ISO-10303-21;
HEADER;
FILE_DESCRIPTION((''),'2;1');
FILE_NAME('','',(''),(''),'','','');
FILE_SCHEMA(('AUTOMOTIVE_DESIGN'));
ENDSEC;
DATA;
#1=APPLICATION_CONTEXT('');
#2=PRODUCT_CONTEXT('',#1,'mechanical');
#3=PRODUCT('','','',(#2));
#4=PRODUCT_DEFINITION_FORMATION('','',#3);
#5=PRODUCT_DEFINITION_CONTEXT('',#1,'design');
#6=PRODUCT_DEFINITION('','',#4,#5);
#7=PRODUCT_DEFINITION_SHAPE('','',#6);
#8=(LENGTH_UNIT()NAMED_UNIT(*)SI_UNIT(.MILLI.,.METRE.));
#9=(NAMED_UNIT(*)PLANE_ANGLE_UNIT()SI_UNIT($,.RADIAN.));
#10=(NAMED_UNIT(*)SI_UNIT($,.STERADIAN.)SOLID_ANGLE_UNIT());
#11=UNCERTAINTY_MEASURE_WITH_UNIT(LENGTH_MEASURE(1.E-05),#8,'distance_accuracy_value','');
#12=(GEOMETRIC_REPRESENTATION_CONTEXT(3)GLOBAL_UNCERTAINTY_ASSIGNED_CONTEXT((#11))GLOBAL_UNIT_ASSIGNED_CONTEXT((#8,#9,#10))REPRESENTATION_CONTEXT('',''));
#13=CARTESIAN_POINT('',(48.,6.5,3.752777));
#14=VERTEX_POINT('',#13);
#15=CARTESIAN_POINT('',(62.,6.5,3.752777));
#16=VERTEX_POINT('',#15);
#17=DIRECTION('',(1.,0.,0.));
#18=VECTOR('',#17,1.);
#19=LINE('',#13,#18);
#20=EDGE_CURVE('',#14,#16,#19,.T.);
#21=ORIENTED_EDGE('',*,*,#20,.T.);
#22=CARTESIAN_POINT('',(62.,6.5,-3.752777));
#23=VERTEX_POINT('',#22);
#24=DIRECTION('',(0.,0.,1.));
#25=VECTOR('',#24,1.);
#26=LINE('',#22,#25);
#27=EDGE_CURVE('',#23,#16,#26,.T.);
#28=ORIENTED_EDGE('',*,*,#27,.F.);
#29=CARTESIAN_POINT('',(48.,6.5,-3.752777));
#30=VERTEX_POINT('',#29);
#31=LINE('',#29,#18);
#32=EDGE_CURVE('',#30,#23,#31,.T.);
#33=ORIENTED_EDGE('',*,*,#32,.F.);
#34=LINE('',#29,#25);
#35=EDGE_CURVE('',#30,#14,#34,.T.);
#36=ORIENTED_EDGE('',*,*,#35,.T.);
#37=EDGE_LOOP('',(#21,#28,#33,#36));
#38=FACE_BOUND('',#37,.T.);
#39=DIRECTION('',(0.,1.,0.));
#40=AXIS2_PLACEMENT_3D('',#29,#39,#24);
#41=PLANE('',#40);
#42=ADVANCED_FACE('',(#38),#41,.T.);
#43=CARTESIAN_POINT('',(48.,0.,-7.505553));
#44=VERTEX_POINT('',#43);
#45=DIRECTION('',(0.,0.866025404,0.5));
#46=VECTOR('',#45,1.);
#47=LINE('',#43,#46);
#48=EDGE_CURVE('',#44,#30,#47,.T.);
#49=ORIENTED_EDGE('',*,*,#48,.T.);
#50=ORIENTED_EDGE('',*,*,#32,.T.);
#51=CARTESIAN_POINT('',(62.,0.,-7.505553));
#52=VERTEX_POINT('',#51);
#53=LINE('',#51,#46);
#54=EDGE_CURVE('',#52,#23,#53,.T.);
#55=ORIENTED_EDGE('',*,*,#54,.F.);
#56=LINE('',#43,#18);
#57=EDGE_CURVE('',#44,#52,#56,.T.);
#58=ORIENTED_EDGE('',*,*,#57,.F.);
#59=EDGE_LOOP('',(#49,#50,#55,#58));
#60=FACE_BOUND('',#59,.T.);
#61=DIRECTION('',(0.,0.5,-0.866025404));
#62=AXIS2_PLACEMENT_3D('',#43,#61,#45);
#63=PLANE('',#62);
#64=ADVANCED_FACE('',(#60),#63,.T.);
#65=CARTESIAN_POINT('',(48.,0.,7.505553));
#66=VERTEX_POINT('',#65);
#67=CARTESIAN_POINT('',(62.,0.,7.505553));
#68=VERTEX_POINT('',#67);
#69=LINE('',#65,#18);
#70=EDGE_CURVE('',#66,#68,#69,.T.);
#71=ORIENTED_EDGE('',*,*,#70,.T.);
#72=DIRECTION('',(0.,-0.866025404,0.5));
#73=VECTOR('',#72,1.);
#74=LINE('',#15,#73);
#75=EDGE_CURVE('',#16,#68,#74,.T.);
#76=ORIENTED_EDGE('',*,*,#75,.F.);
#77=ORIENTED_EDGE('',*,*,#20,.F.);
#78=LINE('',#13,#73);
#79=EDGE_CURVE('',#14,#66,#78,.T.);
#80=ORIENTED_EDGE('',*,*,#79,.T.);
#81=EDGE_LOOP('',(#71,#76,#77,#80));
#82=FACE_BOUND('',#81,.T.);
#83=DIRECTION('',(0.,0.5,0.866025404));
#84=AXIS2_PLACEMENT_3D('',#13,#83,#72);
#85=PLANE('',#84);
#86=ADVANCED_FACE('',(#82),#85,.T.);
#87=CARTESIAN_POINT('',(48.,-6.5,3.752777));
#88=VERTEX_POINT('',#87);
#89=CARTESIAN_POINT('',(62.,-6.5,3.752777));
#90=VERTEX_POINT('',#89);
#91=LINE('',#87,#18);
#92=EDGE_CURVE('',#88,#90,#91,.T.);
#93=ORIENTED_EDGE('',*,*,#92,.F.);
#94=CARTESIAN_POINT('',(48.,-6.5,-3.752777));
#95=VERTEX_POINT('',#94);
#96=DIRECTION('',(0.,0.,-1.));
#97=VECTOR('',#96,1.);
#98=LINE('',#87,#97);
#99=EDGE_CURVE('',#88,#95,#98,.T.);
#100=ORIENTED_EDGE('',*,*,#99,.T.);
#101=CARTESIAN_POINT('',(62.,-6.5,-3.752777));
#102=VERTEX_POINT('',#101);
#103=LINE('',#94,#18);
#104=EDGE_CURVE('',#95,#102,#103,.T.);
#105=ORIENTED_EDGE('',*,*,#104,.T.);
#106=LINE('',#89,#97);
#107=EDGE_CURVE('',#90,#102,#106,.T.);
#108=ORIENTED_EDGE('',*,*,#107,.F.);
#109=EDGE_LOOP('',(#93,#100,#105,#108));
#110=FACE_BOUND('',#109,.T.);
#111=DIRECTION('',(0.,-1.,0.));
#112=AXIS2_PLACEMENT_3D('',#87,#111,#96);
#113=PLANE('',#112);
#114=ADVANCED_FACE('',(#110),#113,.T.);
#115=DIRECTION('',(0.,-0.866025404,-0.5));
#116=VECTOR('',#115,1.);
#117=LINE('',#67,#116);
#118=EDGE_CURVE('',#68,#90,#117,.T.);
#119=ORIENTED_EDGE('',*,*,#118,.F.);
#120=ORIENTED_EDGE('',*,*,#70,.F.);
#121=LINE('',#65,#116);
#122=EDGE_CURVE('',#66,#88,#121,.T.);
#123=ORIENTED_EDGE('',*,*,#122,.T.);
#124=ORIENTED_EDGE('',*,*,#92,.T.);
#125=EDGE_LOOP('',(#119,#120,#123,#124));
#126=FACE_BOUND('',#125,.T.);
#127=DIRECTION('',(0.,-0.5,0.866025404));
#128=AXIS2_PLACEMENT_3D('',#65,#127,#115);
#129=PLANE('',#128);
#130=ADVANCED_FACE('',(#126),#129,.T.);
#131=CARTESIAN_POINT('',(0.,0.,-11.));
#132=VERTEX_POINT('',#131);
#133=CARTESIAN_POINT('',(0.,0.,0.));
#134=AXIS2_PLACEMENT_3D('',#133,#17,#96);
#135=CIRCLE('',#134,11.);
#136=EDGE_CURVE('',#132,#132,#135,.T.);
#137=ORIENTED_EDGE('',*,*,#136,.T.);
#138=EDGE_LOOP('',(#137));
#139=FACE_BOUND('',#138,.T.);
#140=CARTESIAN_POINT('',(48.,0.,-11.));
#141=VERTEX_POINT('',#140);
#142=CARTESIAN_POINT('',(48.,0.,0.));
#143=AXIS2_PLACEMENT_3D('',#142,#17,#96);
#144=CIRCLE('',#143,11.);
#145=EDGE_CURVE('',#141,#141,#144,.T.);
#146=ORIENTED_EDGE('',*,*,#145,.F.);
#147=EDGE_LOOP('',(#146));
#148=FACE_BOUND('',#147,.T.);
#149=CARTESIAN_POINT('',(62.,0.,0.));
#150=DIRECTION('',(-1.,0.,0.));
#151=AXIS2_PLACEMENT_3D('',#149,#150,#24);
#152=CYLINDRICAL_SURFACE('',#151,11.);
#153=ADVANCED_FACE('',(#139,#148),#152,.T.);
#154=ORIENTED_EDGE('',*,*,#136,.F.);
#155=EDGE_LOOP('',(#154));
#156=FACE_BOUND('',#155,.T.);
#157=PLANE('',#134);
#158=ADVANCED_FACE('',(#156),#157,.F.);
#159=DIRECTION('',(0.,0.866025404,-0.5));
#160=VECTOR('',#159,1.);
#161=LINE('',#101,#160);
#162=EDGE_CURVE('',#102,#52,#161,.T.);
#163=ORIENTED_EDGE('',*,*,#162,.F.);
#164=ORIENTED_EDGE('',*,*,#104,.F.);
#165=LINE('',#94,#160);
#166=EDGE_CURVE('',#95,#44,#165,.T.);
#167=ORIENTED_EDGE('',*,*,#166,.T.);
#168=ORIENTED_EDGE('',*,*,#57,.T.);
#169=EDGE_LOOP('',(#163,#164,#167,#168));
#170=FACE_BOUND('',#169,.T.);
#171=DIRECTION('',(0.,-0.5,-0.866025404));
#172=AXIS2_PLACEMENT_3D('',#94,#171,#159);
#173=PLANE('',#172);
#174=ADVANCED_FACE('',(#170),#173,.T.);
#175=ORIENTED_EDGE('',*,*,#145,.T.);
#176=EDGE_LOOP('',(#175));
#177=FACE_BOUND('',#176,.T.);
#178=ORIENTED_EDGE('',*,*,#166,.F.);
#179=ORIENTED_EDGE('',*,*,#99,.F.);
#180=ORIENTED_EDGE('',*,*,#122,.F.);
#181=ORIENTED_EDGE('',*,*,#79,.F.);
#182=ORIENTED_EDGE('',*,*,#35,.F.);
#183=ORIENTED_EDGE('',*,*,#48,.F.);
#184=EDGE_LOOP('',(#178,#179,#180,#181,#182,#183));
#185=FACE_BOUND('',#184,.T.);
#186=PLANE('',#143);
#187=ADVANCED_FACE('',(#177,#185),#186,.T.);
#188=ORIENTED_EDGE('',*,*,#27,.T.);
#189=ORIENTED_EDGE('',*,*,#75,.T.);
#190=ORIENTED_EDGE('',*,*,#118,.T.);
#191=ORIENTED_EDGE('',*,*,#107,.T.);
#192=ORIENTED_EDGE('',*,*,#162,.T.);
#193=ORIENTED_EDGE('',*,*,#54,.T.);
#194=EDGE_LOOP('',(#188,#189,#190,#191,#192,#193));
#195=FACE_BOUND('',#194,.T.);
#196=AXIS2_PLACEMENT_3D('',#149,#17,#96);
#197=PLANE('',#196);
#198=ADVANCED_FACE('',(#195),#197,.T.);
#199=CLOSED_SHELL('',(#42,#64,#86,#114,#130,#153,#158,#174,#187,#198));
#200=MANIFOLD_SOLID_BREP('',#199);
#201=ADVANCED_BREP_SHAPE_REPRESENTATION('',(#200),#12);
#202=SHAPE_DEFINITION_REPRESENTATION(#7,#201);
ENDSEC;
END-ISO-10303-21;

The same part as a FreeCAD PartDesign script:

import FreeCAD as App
import Part
import Sketcher

V = App.Vector
Q = App.Units.Quantity


def add_polygon(sketch, points):
    """Adds a closed chain of lines whose ends are joined by coincident constraints."""
    first, n = sketch.GeometryCount, len(points)
    for a, b in zip(points, points[1:] + points[:1]):
        sketch.addGeometry(Part.LineSegment(App.Vector(*a, 0), App.Vector(*b, 0)), False)
    for i in range(n):
        sketch.addConstraint(Sketcher.Constraint("Coincident", first + i, 2, first + (i + 1) % n, 1))

doc = App.newDocument("Part")
params = doc.addObject("Spreadsheet::Sheet", "Params")
for row, (alias, value) in enumerate([
    ("sketch1_diameter", "22 mm"),
    ("pad1_length", "62 mm"),
    ("sketch2_diameter", "22 mm"),
    ("pocket1_length", "14 mm"),
], start=1):
    params.set(f"A{row}", alias)
    params.set(f"B{row}", "=" + value)
    params.setAlias(f"B{row}", alias)

body = doc.addObject("PartDesign::Body", "Body")

# Sketch on YZ plane
sketch1 = doc.addObject("Sketcher::SketchObject", "Sketch")
body.addObject(sketch1)
sketch1.AttachmentSupport = (doc.YZ_Plane, [""])
sketch1.MapMode = "FlatFace"
sketch1.addGeometry(Part.Circle(V(0, 0, 0), V(0, 0, 1), 11), False)
sketch1.addConstraint([
    Sketcher.Constraint("Coincident", 0, 3, -1, 1),
    Sketcher.Constraint("Diameter", 0, Q("22 mm")),
])
sketch1.setExpression("Constraints[1]", "Params.sketch1_diameter")
pad1 = doc.addObject("PartDesign::Pad", "Pad")
body.addObject(pad1)
pad1.Profile = sketch1
pad1.setExpression("Length", "Params.pad1_length")

# Sketch on YZ plane
sketch2 = doc.addObject("Sketcher::SketchObject", "Sketch001")
body.addObject(sketch2)
sketch2.AttachmentSupport = (doc.YZ_Plane, [""])
sketch2.MapMode = "FlatFace"
sketch2.AttachmentOffset = App.Placement(V(0, 0, 48), App.Rotation())
sketch2.addGeometry(Part.Circle(V(0, 0, 0), V(0, 0, 1), 11), False)  # 0
add_polygon(sketch2, [(-6.5, 3.752777), (0, 7.505553), (6.5, 3.752777), (6.5, -3.752777), (0, -7.505553), (-6.5, -3.752777)])  # lines 1-6
sketch2.addConstraint([
    Sketcher.Constraint("Vertical", 3),
    Sketcher.Constraint("Vertical", 6),
    Sketcher.Constraint("Coincident", 0, 3, -1, 1),
    Sketcher.Constraint("Symmetric", 1, 2, 4, 2, -1, 1),
    Sketcher.Constraint("Symmetric", 2, 2, 5, 2, -1, 1),
    Sketcher.Constraint("PointOnObject", 1, 2, -2),
    Sketcher.Constraint("Parallel", 1, 4),
    Sketcher.Constraint("Horizontal", 3, 2, 5, 2),
    Sketcher.Constraint("Diameter", 0, Q("22 mm")),
    Sketcher.Constraint("Angle", 1, Q("30 deg")),
    Sketcher.Constraint("DistanceX", 5, 2, 3, 2, Q("13 mm")),
    Sketcher.Constraint("DistanceY", 3, 2, 3, 1, Q("7.505554 mm")),
])
sketch2.setExpression("Constraints[14]", "Params.sketch2_diameter")
pocket1 = doc.addObject("PartDesign::Pocket", "Pocket")
body.addObject(pocket1)
pocket1.Profile = sketch2
pocket1.setExpression("Length", "Params.pocket1_length")
pocket1.Reversed = True

doc.recompute()
